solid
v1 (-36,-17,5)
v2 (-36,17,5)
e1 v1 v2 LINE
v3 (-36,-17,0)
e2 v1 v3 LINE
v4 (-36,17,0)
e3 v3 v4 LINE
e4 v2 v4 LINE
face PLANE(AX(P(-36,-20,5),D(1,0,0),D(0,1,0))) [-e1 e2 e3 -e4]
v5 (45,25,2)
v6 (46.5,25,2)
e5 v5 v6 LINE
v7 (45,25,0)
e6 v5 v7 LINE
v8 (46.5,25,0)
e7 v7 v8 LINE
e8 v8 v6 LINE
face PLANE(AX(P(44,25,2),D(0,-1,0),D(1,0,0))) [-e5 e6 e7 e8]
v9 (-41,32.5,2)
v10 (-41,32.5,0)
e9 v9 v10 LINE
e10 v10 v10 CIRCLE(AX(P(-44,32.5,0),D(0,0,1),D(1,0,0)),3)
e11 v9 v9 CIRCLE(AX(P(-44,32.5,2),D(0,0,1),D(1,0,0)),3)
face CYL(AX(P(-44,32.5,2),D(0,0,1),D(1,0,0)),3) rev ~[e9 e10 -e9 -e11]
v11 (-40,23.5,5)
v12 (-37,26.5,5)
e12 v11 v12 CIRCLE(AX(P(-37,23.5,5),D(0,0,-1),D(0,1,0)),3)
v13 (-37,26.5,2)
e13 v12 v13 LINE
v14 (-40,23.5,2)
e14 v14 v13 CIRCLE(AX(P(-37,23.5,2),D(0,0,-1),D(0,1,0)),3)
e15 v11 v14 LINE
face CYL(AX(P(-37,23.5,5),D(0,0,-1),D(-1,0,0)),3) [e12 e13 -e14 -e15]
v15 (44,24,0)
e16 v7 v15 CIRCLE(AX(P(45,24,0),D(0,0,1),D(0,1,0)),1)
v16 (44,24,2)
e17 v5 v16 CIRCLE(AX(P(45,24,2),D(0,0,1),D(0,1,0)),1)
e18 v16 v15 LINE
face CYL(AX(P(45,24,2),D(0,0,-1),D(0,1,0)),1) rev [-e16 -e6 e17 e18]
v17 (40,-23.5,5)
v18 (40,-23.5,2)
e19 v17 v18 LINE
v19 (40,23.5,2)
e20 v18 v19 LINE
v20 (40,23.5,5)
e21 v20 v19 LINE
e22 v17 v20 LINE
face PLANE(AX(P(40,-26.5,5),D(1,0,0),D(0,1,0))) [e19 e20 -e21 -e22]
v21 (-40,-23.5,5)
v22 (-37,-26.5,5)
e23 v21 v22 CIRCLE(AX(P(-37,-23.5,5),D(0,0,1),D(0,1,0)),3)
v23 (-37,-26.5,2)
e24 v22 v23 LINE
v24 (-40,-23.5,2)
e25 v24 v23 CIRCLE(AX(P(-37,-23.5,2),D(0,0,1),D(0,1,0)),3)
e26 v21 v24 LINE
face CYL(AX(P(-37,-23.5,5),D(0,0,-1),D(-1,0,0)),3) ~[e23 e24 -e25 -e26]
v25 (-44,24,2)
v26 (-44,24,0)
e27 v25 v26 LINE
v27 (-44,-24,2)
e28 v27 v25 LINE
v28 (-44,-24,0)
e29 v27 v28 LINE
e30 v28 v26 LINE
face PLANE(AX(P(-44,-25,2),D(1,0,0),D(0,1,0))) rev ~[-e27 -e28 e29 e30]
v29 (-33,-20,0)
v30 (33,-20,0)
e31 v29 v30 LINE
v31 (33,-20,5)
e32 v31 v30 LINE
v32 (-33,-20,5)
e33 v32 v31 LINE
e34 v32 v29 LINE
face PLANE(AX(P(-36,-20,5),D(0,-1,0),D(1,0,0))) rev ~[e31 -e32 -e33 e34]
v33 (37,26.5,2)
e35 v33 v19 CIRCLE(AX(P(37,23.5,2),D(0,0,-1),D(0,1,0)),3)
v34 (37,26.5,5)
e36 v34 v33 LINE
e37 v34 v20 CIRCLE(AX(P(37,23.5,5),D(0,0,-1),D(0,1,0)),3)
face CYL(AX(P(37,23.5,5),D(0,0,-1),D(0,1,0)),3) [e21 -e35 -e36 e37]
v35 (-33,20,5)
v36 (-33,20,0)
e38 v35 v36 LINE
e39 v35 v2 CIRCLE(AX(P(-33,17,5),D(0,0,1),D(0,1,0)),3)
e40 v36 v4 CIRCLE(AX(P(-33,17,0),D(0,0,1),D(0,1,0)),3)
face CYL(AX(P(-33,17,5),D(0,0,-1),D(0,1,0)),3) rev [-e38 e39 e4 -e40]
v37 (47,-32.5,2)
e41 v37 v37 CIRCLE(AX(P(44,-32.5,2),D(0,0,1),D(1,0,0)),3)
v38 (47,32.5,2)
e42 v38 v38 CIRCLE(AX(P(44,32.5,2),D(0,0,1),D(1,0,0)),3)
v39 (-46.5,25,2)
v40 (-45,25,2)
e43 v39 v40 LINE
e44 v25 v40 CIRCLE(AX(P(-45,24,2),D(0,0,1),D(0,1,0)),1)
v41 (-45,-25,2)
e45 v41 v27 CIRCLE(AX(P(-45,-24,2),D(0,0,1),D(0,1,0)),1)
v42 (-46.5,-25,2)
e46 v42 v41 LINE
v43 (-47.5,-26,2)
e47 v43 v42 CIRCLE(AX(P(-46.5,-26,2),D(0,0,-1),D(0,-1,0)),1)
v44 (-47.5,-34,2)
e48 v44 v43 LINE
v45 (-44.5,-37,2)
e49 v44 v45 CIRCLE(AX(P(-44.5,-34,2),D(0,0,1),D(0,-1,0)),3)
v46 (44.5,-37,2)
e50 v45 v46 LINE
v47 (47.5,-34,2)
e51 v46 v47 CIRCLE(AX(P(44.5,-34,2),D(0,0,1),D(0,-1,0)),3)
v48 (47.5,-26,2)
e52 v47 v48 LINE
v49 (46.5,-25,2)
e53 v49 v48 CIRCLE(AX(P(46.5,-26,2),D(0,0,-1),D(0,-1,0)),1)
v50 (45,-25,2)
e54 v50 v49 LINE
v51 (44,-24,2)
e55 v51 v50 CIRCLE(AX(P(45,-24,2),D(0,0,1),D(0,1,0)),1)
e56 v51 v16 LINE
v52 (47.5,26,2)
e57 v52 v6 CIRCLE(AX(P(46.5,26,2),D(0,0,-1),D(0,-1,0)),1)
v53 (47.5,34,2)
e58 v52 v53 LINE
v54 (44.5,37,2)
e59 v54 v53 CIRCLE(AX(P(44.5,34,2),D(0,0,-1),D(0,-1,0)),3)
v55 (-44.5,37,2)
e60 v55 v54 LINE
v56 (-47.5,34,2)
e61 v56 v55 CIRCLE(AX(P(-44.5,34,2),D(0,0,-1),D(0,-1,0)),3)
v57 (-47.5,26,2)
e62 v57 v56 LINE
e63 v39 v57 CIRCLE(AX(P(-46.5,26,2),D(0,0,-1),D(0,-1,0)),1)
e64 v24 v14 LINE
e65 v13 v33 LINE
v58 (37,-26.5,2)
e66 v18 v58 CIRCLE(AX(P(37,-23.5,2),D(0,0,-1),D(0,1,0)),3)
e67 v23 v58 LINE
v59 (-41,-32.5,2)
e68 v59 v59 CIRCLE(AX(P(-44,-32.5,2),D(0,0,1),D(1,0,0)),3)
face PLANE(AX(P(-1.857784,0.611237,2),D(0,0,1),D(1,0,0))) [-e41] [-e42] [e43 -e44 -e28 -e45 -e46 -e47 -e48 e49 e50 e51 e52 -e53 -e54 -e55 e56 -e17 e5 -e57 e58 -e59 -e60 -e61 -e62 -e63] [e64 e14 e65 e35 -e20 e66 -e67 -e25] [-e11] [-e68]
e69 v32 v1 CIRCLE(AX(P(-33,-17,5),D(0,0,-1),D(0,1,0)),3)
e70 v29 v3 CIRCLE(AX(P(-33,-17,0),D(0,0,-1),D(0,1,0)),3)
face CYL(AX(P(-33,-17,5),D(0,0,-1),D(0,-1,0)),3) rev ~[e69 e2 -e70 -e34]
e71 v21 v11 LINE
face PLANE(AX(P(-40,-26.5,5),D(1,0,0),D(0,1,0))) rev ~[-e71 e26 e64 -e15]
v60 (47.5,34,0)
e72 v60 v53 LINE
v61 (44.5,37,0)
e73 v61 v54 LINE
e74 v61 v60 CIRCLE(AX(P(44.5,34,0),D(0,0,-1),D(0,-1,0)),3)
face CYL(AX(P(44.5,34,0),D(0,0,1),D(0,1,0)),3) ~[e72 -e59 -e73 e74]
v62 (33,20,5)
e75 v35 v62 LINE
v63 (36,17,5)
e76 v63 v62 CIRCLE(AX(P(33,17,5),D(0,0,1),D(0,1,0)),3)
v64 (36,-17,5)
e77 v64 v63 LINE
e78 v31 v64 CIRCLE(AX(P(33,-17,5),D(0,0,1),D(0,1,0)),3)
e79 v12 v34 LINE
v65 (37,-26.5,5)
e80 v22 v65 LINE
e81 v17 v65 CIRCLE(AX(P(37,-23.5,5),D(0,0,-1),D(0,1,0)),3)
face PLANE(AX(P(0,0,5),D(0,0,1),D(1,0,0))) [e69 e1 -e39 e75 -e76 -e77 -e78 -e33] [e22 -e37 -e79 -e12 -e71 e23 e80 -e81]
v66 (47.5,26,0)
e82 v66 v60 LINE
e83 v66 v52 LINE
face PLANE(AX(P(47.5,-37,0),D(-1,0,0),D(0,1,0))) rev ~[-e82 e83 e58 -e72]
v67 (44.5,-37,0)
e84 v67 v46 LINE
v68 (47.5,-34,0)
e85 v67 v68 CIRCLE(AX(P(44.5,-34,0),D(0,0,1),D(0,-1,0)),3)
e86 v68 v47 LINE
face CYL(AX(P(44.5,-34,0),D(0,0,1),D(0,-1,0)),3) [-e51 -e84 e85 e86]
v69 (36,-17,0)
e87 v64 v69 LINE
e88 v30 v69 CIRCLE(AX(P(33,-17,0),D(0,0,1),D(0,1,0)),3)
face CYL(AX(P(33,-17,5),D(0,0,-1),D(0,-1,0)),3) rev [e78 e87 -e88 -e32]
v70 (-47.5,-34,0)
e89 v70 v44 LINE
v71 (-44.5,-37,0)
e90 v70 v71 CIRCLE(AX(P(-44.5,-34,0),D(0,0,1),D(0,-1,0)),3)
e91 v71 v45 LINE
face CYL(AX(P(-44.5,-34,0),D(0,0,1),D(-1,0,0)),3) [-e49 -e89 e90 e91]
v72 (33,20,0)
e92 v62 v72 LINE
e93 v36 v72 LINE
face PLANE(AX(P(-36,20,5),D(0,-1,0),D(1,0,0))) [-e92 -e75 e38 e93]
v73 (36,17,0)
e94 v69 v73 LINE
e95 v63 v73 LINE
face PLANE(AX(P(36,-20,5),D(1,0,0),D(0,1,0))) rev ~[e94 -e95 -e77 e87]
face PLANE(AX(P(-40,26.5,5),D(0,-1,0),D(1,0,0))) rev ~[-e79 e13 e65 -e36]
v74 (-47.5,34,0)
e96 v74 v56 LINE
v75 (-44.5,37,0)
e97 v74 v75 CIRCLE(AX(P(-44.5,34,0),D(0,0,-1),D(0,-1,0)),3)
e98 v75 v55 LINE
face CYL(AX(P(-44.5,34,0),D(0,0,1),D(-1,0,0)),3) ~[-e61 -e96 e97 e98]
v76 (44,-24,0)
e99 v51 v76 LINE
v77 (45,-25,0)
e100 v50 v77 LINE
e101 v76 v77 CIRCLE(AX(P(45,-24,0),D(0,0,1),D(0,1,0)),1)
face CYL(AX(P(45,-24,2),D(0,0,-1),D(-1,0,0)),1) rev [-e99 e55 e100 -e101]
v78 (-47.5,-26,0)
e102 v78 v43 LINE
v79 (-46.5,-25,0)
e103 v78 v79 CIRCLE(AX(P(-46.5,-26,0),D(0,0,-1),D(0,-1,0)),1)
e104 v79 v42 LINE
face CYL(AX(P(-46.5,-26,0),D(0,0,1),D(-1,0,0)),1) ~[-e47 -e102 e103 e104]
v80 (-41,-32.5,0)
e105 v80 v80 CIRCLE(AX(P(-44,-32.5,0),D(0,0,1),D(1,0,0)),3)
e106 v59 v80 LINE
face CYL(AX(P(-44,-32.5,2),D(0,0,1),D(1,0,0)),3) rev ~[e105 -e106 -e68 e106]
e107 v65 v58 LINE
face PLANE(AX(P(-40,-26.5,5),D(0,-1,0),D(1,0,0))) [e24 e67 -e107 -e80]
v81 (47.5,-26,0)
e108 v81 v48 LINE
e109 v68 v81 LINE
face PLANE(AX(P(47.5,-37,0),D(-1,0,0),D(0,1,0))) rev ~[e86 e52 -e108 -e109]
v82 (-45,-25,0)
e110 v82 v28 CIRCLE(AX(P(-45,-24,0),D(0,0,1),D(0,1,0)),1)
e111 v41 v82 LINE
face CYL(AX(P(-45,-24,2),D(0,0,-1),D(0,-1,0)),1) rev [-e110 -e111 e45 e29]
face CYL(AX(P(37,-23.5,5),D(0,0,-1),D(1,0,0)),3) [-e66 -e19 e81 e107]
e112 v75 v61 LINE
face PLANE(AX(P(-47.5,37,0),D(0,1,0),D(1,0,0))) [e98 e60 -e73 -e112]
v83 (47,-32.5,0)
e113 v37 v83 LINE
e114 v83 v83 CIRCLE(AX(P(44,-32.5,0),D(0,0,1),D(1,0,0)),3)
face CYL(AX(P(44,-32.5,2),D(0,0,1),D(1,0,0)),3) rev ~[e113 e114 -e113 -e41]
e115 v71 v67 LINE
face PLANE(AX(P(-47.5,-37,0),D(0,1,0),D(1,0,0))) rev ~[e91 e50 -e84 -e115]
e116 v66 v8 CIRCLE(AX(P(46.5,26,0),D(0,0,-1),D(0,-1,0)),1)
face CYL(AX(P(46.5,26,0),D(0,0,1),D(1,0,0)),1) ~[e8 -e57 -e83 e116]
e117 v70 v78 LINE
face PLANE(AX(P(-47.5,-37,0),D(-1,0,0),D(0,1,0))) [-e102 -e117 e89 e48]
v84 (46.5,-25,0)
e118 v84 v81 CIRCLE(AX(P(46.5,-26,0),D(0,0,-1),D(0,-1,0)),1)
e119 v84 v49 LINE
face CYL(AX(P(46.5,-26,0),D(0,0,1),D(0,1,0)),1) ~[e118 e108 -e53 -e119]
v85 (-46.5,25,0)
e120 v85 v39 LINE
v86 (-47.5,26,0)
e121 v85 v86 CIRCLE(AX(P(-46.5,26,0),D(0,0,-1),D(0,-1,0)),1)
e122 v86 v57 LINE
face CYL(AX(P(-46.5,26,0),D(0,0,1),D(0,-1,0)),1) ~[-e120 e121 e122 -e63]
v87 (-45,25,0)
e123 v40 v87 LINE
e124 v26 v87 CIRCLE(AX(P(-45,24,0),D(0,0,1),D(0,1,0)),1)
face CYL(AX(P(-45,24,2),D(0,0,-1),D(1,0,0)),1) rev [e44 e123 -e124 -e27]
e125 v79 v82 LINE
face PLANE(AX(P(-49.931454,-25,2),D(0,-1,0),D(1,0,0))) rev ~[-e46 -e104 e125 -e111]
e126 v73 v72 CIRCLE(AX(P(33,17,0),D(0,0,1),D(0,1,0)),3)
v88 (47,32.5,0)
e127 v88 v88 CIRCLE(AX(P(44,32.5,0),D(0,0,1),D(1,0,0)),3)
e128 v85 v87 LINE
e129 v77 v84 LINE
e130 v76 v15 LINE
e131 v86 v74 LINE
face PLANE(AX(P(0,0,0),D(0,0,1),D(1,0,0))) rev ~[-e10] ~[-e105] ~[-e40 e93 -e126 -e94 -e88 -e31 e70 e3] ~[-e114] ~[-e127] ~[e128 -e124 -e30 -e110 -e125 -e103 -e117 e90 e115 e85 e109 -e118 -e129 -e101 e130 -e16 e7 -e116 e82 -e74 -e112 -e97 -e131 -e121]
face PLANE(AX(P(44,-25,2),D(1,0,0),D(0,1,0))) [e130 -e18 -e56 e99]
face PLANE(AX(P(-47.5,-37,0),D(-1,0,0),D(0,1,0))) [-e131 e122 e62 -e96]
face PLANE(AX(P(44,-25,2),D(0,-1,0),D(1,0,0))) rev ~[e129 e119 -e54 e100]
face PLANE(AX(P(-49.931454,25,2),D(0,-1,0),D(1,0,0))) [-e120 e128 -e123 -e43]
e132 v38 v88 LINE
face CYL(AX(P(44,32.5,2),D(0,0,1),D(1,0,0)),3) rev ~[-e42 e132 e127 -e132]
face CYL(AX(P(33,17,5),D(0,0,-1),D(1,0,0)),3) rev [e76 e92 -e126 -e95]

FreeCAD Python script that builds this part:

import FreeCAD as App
import Part
import Sketcher
from FreeCAD import Vector


def edges_at(feature, points):
    """Names of the edges that pass closest to the given points."""
    edges = feature.Shape.Edges
    near = lambda p: min(range(len(edges)), key=lambda i: edges[i].distToShape(Part.Vertex(*p))[0])
    return sorted({f"Edge{near(p) + 1}" for p in points})

doc = App.newDocument("Part")
body = doc.addObject("PartDesign::Body", "Body")

# Sketch on XY plane
sketch1 = body.newObject("Sketcher::SketchObject", "Sketch")
sketch1.AttachmentSupport = (doc.getObject("XY_Plane"), [""])
sketch1.MapMode = "FlatFace"
sketch1.addGeometry([
    Part.LineSegment(Vector(-48, 37, 0), Vector(-48, -37, 0)),
    Part.LineSegment(Vector(-48, -37, 0), Vector(48, -37, 0)),
    Part.LineSegment(Vector(48, -37, 0), Vector(48, 37, 0)),
    Part.LineSegment(Vector(48, 37, 0), Vector(-48, 37, 0)),
], False)
sketch1.addConstraint([
    Sketcher.Constraint("Coincident", 0, 2, 1, 1),
    Sketcher.Constraint("Coincident", 1, 2, 2, 1),
    Sketcher.Constraint("Coincident", 2, 2, 3, 1),
    Sketcher.Constraint("Coincident", 3, 2, 0, 1),
    Sketcher.Constraint("Vertical", 0),
    Sketcher.Constraint("Horizontal", 1),
    Sketcher.Constraint("Vertical", 2),
    Sketcher.Constraint("Horizontal", 3),
    Sketcher.Constraint("Symmetric", 0, 2, 2, 2, -1, 1),
    Sketcher.Constraint("DistanceX", 1, 1, 1, 2, 95.0),
    Sketcher.Constraint("DistanceY", 0, 2, 0, 1, 74.0),
])
pad1 = body.newObject("PartDesign::Pad", "Pad")
pad1.Profile = sketch1
pad1.Length = 5

# Sketch on XY plane
sketch2 = body.newObject("Sketcher::SketchObject", "Sketch001")
sketch2.AttachmentSupport = (doc.getObject("XY_Plane"), [""])
sketch2.MapMode = "FlatFace"
sketch2.AttachmentOffset = App.Placement(Vector(0, 0, 5), App.Rotation())
sketch2.addGeometry([
    Part.LineSegment(Vector(-36, 20, 0), Vector(-36, -20, 0)),
    Part.LineSegment(Vector(-36, -20, 0), Vector(36, -20, 0)),
    Part.LineSegment(Vector(36, -20, 0), Vector(36, 20, 0)),
    Part.LineSegment(Vector(36, 20, 0), Vector(-36, 20, 0)),
], False)
sketch2.addConstraint([
    Sketcher.Constraint("Coincident", 0, 2, 1, 1),
    Sketcher.Constraint("Coincident", 1, 2, 2, 1),
    Sketcher.Constraint("Coincident", 2, 2, 3, 1),
    Sketcher.Constraint("Coincident", 3, 2, 0, 1),
    Sketcher.Constraint("Vertical", 0),
    Sketcher.Constraint("Horizontal", 1),
    Sketcher.Constraint("Vertical", 2),
    Sketcher.Constraint("Horizontal", 3),
    Sketcher.Constraint("Symmetric", 0, 2, 2, 2, -1, 1),
    Sketcher.Constraint("DistanceX", 1, 1, 1, 2, 72.0),
    Sketcher.Constraint("DistanceY", 0, 2, 0, 1, 40.0),
])
pocket1 = body.newObject("PartDesign::Pocket", "Pocket")
pocket1.Profile = sketch2
pocket1.Type = "ThroughAll"

# Sketch on XY plane
sketch3 = body.newObject("Sketcher::SketchObject", "Sketch002")
sketch3.AttachmentSupport = (doc.getObject("XY_Plane"), [""])
sketch3.MapMode = "FlatFace"
sketch3.AttachmentOffset = App.Placement(Vector(0, 0, 5), App.Rotation())
sketch3.addGeometry([
    Part.LineSegment(Vector(-61, 47, 0), Vector(-61, -46, 0)),  # 0
    Part.LineSegment(Vector(-61, -46, 0), Vector(57, -46, 0)),  # 1
    Part.LineSegment(Vector(57, -46, 0), Vector(57, 47, 0)),  # 2
    Part.LineSegment(Vector(57, 47, 0), Vector(-61, 47, 0)),  # 3
    Part.LineSegment(Vector(40, -26, 0), Vector(-40, -26, 0)),  # 4
    Part.LineSegment(Vector(-40, -26, 0), Vector(-40, 26, 0)),  # 5
    Part.LineSegment(Vector(-40, 26, 0), Vector(40, 26, 0)),  # 6
    Part.LineSegment(Vector(40, 26, 0), Vector(40, -26, 0)),  # 7
], False)
sketch3.addConstraint([
    Sketcher.Constraint("Coincident", 0, 2, 1, 1),
    Sketcher.Constraint("Coincident", 1, 2, 2, 1),
    Sketcher.Constraint("Coincident", 2, 2, 3, 1),
    Sketcher.Constraint("Coincident", 3, 2, 0, 1),
    Sketcher.Constraint("Coincident", 4, 2, 5, 1),
    Sketcher.Constraint("Coincident", 5, 2, 6, 1),
    Sketcher.Constraint("Coincident", 6, 2, 7, 1),
    Sketcher.Constraint("Coincident", 7, 2, 4, 1),
    Sketcher.Constraint("Vertical", 0),
    Sketcher.Constraint("Horizontal", 1),
    Sketcher.Constraint("Vertical", 2),
    Sketcher.Constraint("Horizontal", 3),
    Sketcher.Constraint("Horizontal", 4),
    Sketcher.Constraint("Vertical", 5),
    Sketcher.Constraint("Horizontal", 6),
    Sketcher.Constraint("Vertical", 7),
    Sketcher.Constraint("Symmetric", 4, 2, 6, 2, -1, 1),
    Sketcher.Constraint("DistanceX", 4, 2, 4, 1, 80.0),
    Sketcher.Constraint("DistanceY", 5, 1, 5, 2, 53.0),
    Sketcher.Constraint("DistanceY", 0, 2, 0, 1, 92.433091),
    Sketcher.Constraint("DistanceX", 1, 1, 1, 2, 117.661896),
    Sketcher.Constraint("DistanceY", 0, 2, -1, 1, 45.605308),
    Sketcher.Constraint("DistanceX", 3, 2, 6, 2, 100.688732),
])
pocket2 = body.newObject("PartDesign::Pocket", "Pocket001")
pocket2.Profile = sketch3
pocket2.Length = 3
doc.recompute()

fillet = body.newObject("PartDesign::Fillet", "Fillet")
fillet.Base = (pocket2, edges_at(pocket2, [
    (-36, 20, 2.5),
    (36, 20, 2.5),
    (36, -20, 2.5),
    (-36, -20, 2.5),
]))
fillet.Radius = 3
doc.recompute()

fillet2 = body.newObject("PartDesign::Fillet", "Fillet001")
fillet2.Base = (fillet, edges_at(fillet, [
    (40, 26.5, 3.5),
    (47.5, 37, 1),
    (47.5, -37, 1),
    (40, -26.5, 3.5),
    (-47.5, -37, 1),
    (-40, -26.5, 3.5),
    (-40, 26.5, 3.5),
    (-47.5, 37, 1),
]))
fillet2.Radius = 3

# Sketch on XY plane
sketch4 = body.newObject("Sketcher::SketchObject", "Sketch003")
sketch4.AttachmentSupport = (doc.getObject("XY_Plane"), [""])
sketch4.MapMode = "FlatFace"
sketch4.AttachmentOffset = App.Placement(Vector(0, 0, 2), App.Rotation())
sketch4.addGeometry([
    Part.Circle(Vector(-44, 32.5, 0), Vector(0, 0, 1), 3),
    Part.Circle(Vector(44, 32.5, 0), Vector(0, 0, 1), 3),
    Part.Circle(Vector(44, -32.5, 0), Vector(0, 0, 1), 3),
    Part.Circle(Vector(-44, -32.5, 0), Vector(0, 0, 1), 3),
], False)
sketch4.addConstraint([
    Sketcher.Constraint("Equal", 0, 1),
    Sketcher.Constraint("Equal", 1, 2),
    Sketcher.Constraint("Equal", 2, 3),
    Sketcher.Constraint("Symmetric", 0, 3, 2, 3, -1, 1),
    Sketcher.Constraint("Symmetric", 1, 3, 3, 3, -1, 1),
    Sketcher.Constraint("Symmetric", 0, 3, 1, 3, -2),
    Sketcher.Constraint("Diameter", 0, 6.0),
    Sketcher.Constraint("DistanceX", 0, 3, -1, 1, 44.0),
    Sketcher.Constraint("DistanceY", 2, 3, 1, 3, 65.0),
])
pocket3 = body.newObject("PartDesign::Pocket", "Pocket002")
pocket3.Profile = sketch4
pocket3.Length = 5

# Sketch on XY plane
sketch5 = body.newObject("Sketcher::SketchObject", "Sketch004")
sketch5.AttachmentSupport = (doc.getObject("XY_Plane"), [""])
sketch5.MapMode = "FlatFace"
sketch5.AttachmentOffset = App.Placement(Vector(0, 0, 2), App.Rotation())
sketch5.addGeometry([
    Part.LineSegment(Vector(44, 25, 0), Vector(44, -25, 0)),  # 0
    Part.LineSegment(Vector(44, -25, 0), Vector(49, -25, 0)),  # 1
    Part.LineSegment(Vector(49, -25, 0), Vector(49, 25, 0)),  # 2
    Part.LineSegment(Vector(49, 25, 0), Vector(44, 25, 0)),  # 3
    Part.LineSegment(Vector(-50, 25, 0), Vector(-50, -25, 0)),  # 4
    Part.LineSegment(Vector(-50, -25, 0), Vector(-44, -25, 0)),  # 5
    Part.LineSegment(Vector(-44, -25, 0), Vector(-44, 25, 0)),  # 6
    Part.LineSegment(Vector(-44, 25, 0), Vector(-50, 25, 0)),  # 7
], False)
sketch5.addConstraint([
    Sketcher.Constraint("Coincident", 0, 2, 1, 1),
    Sketcher.Constraint("Coincident", 1, 2, 2, 1),
    Sketcher.Constraint("Coincident", 2, 2, 3, 1),
    Sketcher.Constraint("Coincident", 3, 2, 0, 1),
    Sketcher.Constraint("Coincident", 4, 2, 5, 1),
    Sketcher.Constraint("Coincident", 5, 2, 6, 1),
    Sketcher.Constraint("Coincident", 6, 2, 7, 1),
    Sketcher.Constraint("Coincident", 7, 2, 4, 1),
    Sketcher.Constraint("Vertical", 0),
    Sketcher.Constraint("Horizontal", 1),
    Sketcher.Constraint("Vertical", 2),
    Sketcher.Constraint("Horizontal", 3),
    Sketcher.Constraint("Vertical", 4),
    Sketcher.Constraint("Horizontal", 5),
    Sketcher.Constraint("Vertical", 6),
    Sketcher.Constraint("Horizontal", 7),
    Sketcher.Constraint("Symmetric", 3, 2, 5, 2, -1, 1),
    Sketcher.Constraint("Horizontal", 1, 2, 4, 2),
    Sketcher.Constraint("Horizontal", 3, 2, 6, 2),
    Sketcher.Constraint("DistanceY", 0, 2, 0, 1, 50.0),
    Sketcher.Constraint("DistanceX", -1, 1, 0, 2, 44.0),
    Sketcher.Constraint("DistanceX", 1, 1, 1, 2, 5.477936),
    Sketcher.Constraint("DistanceX", 5, 1, 5, 2, 5.931454),
])
pocket4 = body.newObject("PartDesign::Pocket", "Pocket003")
pocket4.Profile = sketch5
pocket4.Length = 5
doc.recompute()

fillet3 = body.newObject("PartDesign::Fillet", "Fillet002")
fillet3.Base = (pocket4, edges_at(pocket4, [
    (-47.5, 25, 1),
    (-44, 25, 1),
    (-44, -25, 1),
    (-47.5, -25, 1),
    (47.5, -25, 1),
    (44, -25, 1),
    (44, 25, 1),
    (47.5, 25, 1),
]))
fillet3.Radius = 1

doc.recompute()
